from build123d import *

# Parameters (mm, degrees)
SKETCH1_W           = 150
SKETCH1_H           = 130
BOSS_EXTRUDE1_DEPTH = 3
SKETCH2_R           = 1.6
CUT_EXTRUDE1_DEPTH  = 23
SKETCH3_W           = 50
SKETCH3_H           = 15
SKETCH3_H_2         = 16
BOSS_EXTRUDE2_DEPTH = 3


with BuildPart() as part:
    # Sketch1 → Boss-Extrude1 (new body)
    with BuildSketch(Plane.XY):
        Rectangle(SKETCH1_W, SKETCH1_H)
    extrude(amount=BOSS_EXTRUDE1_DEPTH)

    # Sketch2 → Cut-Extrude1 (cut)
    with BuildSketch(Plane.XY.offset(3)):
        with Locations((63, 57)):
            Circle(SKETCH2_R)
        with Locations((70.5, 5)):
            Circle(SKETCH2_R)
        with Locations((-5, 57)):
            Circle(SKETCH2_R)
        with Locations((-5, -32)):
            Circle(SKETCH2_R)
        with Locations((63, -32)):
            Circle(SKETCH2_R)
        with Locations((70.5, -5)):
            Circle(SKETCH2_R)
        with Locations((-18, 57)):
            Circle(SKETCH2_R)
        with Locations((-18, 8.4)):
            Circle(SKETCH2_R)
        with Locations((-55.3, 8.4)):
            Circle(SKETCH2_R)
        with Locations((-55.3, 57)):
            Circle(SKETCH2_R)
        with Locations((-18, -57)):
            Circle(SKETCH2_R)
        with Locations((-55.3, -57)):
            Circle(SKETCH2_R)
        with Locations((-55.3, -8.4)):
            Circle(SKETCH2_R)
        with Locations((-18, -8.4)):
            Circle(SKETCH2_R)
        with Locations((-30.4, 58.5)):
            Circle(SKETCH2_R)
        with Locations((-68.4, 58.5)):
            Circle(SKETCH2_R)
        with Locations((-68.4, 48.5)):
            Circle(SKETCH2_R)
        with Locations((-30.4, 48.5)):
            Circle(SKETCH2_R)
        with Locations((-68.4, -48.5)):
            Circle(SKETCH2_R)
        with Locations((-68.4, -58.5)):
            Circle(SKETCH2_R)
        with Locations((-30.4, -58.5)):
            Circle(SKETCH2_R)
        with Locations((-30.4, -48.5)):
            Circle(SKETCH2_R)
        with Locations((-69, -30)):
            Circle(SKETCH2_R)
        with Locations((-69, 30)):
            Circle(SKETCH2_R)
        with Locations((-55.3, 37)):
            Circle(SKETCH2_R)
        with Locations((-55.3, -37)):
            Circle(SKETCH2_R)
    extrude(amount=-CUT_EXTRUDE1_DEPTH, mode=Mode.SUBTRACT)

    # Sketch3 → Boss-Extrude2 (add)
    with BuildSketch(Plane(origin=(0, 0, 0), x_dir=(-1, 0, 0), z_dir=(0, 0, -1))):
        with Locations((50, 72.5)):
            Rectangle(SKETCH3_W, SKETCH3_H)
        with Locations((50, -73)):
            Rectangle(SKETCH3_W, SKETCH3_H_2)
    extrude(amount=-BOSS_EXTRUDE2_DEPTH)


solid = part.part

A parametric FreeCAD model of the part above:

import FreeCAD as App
import Part
import Sketcher
from FreeCAD import Vector
Q = App.Units.Quantity


def add_polygon(sketch, points):
    """Adds a closed chain of lines whose ends are joined by coincident constraints."""
    first, n = sketch.GeometryCount, len(points)
    for a, b in zip(points, points[1:] + points[:1]):
        sketch.addGeometry(Part.LineSegment(App.Vector(*a, 0), App.Vector(*b, 0)), False)
    for i in range(n):
        sketch.addConstraint(Sketcher.Constraint("Coincident", first + i, 2, first + (i + 1) % n, 1))

doc = App.newDocument("Part")
params = doc.addObject("Spreadsheet::Sheet", "Params")
for row, (alias, value) in enumerate([
    ("sketch1_width", "150 mm"),
    ("sketch1_height", "130 mm"),
    ("pad1_length", "3 mm"),
    ("sketch2_diameter", "3.2 mm"),
    ("pocket1_length", "23 mm"),
    ("sketch3_width", "50 mm"),
    ("sketch3_height", "15 mm"),
    ("sketch3_height2", "16 mm"),
    ("pad2_length", "3 mm"),
], start=1):
    params.set(f"A{row}", alias)
    params.set(f"B{row}", "=" + value)
    params.setAlias(f"B{row}", alias)

body = doc.addObject("PartDesign::Body", "Body")

sketch1 = body.newObject("Sketcher::SketchObject", "Sketch")
sketch1.AttachmentSupport = (doc.getObject("XY_Plane"), [""])
sketch1.MapMode = "FlatFace"
add_polygon(sketch1, [(-75, 65), (-75, -65), (75, -65), (75, 65)])
sketch1.addConstraint(Sketcher.Constraint("Vertical", 0))
sketch1.addConstraint(Sketcher.Constraint("Horizontal", 1))
sketch1.addConstraint(Sketcher.Constraint("Vertical", 2))
sketch1.addConstraint(Sketcher.Constraint("Horizontal", 3))
sketch1.addConstraint(Sketcher.Constraint("Symmetric", 0, 2, 2, 2, -1, 1))
sketch1.addConstraint(Sketcher.Constraint("DistanceX", 1, 1, 1, 2, Q("150 mm")))
sketch1.addConstraint(Sketcher.Constraint("DistanceY", 0, 2, 0, 1, Q("130 mm")))
sketch1.setExpression("Constraints[9]", "Params.sketch1_width")
sketch1.setExpression("Constraints[10]", "Params.sketch1_height")
pad1 = body.newObject("PartDesign::Pad", "Pad")
pad1.Profile = sketch1
pad1.setExpression("Length", "Params.pad1_length")

sketch2 = body.newObject("Sketcher::SketchObject", "Sketch001")
sketch2.AttachmentSupport = (doc.getObject("XY_Plane"), [""])
sketch2.MapMode = "FlatFace"
sketch2.AttachmentOffset = App.Placement(Vector(0, 0, 3), App.Rotation())
sketch2.addGeometry(Part.Circle(Vector(63, 57, 0), Vector(0, 0, 1), 1.6), False)
sketch2.addGeometry(Part.Circle(Vector(70.5, 5, 0), Vector(0, 0, 1), 1.6), False)
sketch2.addGeometry(Part.Circle(Vector(-5, 57, 0), Vector(0, 0, 1), 1.6), False)
sketch2.addGeometry(Part.Circle(Vector(-5, -32, 0), Vector(0, 0, 1), 1.6), False)
sketch2.addGeometry(Part.Circle(Vector(63, -32, 0), Vector(0, 0, 1), 1.6), False)
sketch2.addGeometry(Part.Circle(Vector(70.5, -5, 0), Vector(0, 0, 1), 1.6), False)
sketch2.addGeometry(Part.Circle(Vector(-18, 57, 0), Vector(0, 0, 1), 1.6), False)
sketch2.addGeometry(Part.Circle(Vector(-18, 8.4, 0), Vector(0, 0, 1), 1.6), False)
sketch2.addGeometry(Part.Circle(Vector(-55.3, 8.4, 0), Vector(0, 0, 1), 1.6), False)
sketch2.addGeometry(Part.Circle(Vector(-55.3, 57, 0), Vector(0, 0, 1), 1.6), False)
sketch2.addGeometry(Part.Circle(Vector(-18, -57, 0), Vector(0, 0, 1), 1.6), False)
sketch2.addGeometry(Part.Circle(Vector(-55.3, -57, 0), Vector(0, 0, 1), 1.6), False)
sketch2.addGeometry(Part.Circle(Vector(-55.3, -8.4, 0), Vector(0, 0, 1), 1.6), False)
sketch2.addGeometry(Part.Circle(Vector(-18, -8.4, 0), Vector(0, 0, 1), 1.6), False)
sketch2.addGeometry(Part.Circle(Vector(-30.4, 58.5, 0), Vector(0, 0, 1), 1.6), False)
sketch2.addGeometry(Part.Circle(Vector(-68.4, 58.5, 0), Vector(0, 0, 1), 1.6), False)
sketch2.addGeometry(Part.Circle(Vector(-68.4, 48.5, 0), Vector(0, 0, 1), 1.6), False)
sketch2.addGeometry(Part.Circle(Vector(-30.4, 48.5, 0), Vector(0, 0, 1), 1.6), False)
sketch2.addGeometry(Part.Circle(Vector(-68.4, -48.5, 0), Vector(0, 0, 1), 1.6), False)
sketch2.addGeometry(Part.Circle(Vector(-68.4, -58.5, 0), Vector(0, 0, 1), 1.6), False)
sketch2.addGeometry(Part.Circle(Vector(-30.4, -58.5, 0), Vector(0, 0, 1), 1.6), False)
sketch2.addGeometry(Part.Circle(Vector(-30.4, -48.5, 0), Vector(0, 0, 1), 1.6), False)
sketch2.addGeometry(Part.Circle(Vector(-69, -30, 0), Vector(0, 0, 1), 1.6), False)
sketch2.addGeometry(Part.Circle(Vector(-69, 30, 0), Vector(0, 0, 1), 1.6), False)
sketch2.addGeometry(Part.Circle(Vector(-55.3, 37, 0), Vector(0, 0, 1), 1.6), False)
sketch2.addGeometry(Part.Circle(Vector(-55.3, -37, 0), Vector(0, 0, 1), 1.6), False)
sketch2.addConstraint(Sketcher.Constraint("Equal", 0, 1))
sketch2.addConstraint(Sketcher.Constraint("Equal", 1, 2))
sketch2.addConstraint(Sketcher.Constraint("Equal", 2, 3))
sketch2.addConstraint(Sketcher.Constraint("Equal", 3, 4))
sketch2.addConstraint(Sketcher.Constraint("Equal", 4, 5))
sketch2.addConstraint(Sketcher.Constraint("Equal", 5, 6))
sketch2.addConstraint(Sketcher.Constraint("Equal", 6, 7))
sketch2.addConstraint(Sketcher.Constraint("Equal", 7, 8))
sketch2.addConstraint(Sketcher.Constraint("Equal", 8, 9))
sketch2.addConstraint(Sketcher.Constraint("Equal", 9, 10))
sketch2.addConstraint(Sketcher.Constraint("Equal", 10, 11))
sketch2.addConstraint(Sketcher.Constraint("Equal", 11, 12))
sketch2.addConstraint(Sketcher.Constraint("Equal", 12, 13))
sketch2.addConstraint(Sketcher.Constraint("Equal", 13, 14))
sketch2.addConstraint(Sketcher.Constraint("Equal", 14, 15))
sketch2.addConstraint(Sketcher.Constraint("Equal", 15, 16))
sketch2.addConstraint(Sketcher.Constraint("Equal", 16, 17))
sketch2.addConstraint(Sketcher.Constraint("Equal", 17, 18))
sketch2.addConstraint(Sketcher.Constraint("Equal", 18, 19))
sketch2.addConstraint(Sketcher.Constraint("Equal", 19, 20))
sketch2.addConstraint(Sketcher.Constraint("Equal", 20, 21))
sketch2.addConstraint(Sketcher.Constraint("Equal", 21, 22))
sketch2.addConstraint(Sketcher.Constraint("Equal", 22, 23))
sketch2.addConstraint(Sketcher.Constraint("Equal", 23, 24))
sketch2.addConstraint(Sketcher.Constraint("Equal", 24, 25))
sketch2.addConstraint(Sketcher.Constraint("Symmetric", 1, 3, 5, 3, -1))
sketch2.addConstraint(Sketcher.Constraint("Symmetric", 6, 3, 10, 3, -1))
sketch2.addConstraint(Sketcher.Constraint("Symmetric", 9, 3, 11, 3, -1))
sketch2.addConstraint(Sketcher.Constraint("Symmetric", 8, 3, 12, 3, -1))
sketch2.addConstraint(Sketcher.Constraint("Symmetric", 7, 3, 13, 3, -1))
sketch2.addConstraint(Sketcher.Constraint("Symmetric", 16, 3, 18, 3, -1))
sketch2.addConstraint(Sketcher.Constraint("Symmetric", 15, 3, 19, 3, -1))
sketch2.addConstraint(Sketcher.Constraint("Symmetric", 14, 3, 20, 3, -1))
sketch2.addConstraint(Sketcher.Constraint("Symmetric", 17, 3, 21, 3, -1))
sketch2.addConstraint(Sketcher.Constraint("Symmetric", 22, 3, 23, 3, -1))
sketch2.addConstraint(Sketcher.Constraint("Symmetric", 24, 3, 25, 3, -1))
sketch2.addConstraint(Sketcher.Constraint("Horizontal", 0, 3, 2, 3))
sketch2.addConstraint(Sketcher.Constraint("Horizontal", 3, 3, 4, 3))
sketch2.addConstraint(Sketcher.Constraint("Horizontal", 2, 3, 6, 3))
sketch2.addConstraint(Sketcher.Constraint("Horizontal", 7, 3, 8, 3))
sketch2.addConstraint(Sketcher.Constraint("Horizontal", 6, 3, 9, 3))
sketch2.addConstraint(Sketcher.Constraint("Horizontal", 14, 3, 15, 3))
sketch2.addConstraint(Sketcher.Constraint("Horizontal", 16, 3, 17, 3))
sketch2.addConstraint(Sketcher.Constraint("Vertical", 2, 3, 3, 3))
sketch2.addConstraint(Sketcher.Constraint("Vertical", 0, 3, 4, 3))
sketch2.addConstraint(Sketcher.Constraint("Vertical", 6, 3, 7, 3))
sketch2.addConstraint(Sketcher.Constraint("Vertical", 8, 3, 9, 3))
sketch2.addConstraint(Sketcher.Constraint("Vertical", 15, 3, 16, 3))
sketch2.addConstraint(Sketcher.Constraint("Vertical", 14, 3, 17, 3))
sketch2.addConstraint(Sketcher.Constraint("Vertical", 12, 3, 24, 3))
sketch2.addConstraint(Sketcher.Constraint("Diameter", 0, Q("3.2 mm")))
sketch2.addConstraint(Sketcher.Constraint("DistanceX", -1, 1, 0, 3, Q("63 mm")))
sketch2.addConstraint(Sketcher.Constraint("DistanceY", -1, 1, 0, 3, Q("57 mm")))
sketch2.addConstraint(Sketcher.Constraint("DistanceY", -1, 1, 1, 3, Q("5 mm")))
sketch2.addConstraint(Sketcher.Constraint("DistanceX", 2, 3, -1, 1, Q("5 mm")))
sketch2.addConstraint(Sketcher.Constraint("DistanceY", 3, 3, -1, 1, Q("32 mm")))
sketch2.addConstraint(Sketcher.Constraint("DistanceX", 6, 3, -1, 1, Q("18 mm")))
sketch2.addConstraint(Sketcher.Constraint("DistanceX", 22, 3, -1, 1, Q("69 mm")))
sketch2.addConstraint(Sketcher.Constraint("DistanceY", 22, 3, -1, 1, Q("30 mm")))
sketch2.addConstraint(Sketcher.Constraint("DistanceY", -1, 1, 24, 3, Q("37 mm")))
sketch2.addConstraint(Sketcher.Constraint("DistanceX", 15, 3, 14, 3, Q("38 mm")))
sketch2.addConstraint(Sketcher.Constraint("DistanceY", 16, 3, 15, 3, Q("10 mm")))
sketch2.addConstraint(Sketcher.Constraint("DistanceX", -1, 1, 1, 3, Q("70.5 mm")))
sketch2.addConstraint(Sketcher.Constraint("DistanceY", -1, 1, 7, 3, Q("8.4 mm")))
sketch2.addConstraint(Sketcher.Constraint("DistanceX", 8, 3, -1, 1, Q("55.3 mm")))
sketch2.addConstraint(Sketcher.Constraint("DistanceX", 14, 3, -1, 1, Q("30.4 mm")))
sketch2.addConstraint(Sketcher.Constraint("DistanceY", -1, 1, 14, 3, Q("58.5 mm")))
sketch2.setExpression("Constraints[50]", "Params.sketch2_diameter")
pocket1 = body.newObject("PartDesign::Pocket", "Pocket")
pocket1.Profile = sketch2
pocket1.setExpression("Length", "Params.pocket1_length")

sketch3 = body.newObject("Sketcher::SketchObject", "Sketch002")
sketch3.AttachmentSupport = (doc.getObject("XY_Plane"), [""])
sketch3.MapMode = "FlatFace"
add_polygon(sketch3, [(-25, 80), (-25, 65), (-75, 65), (-75, 80)])
add_polygon(sketch3, [(-25, -65), (-25, -81), (-75, -81), (-75, -65)])
sketch3.addConstraint(Sketcher.Constraint("Vertical", 0))
sketch3.addConstraint(Sketcher.Constraint("Horizontal", 1))
sketch3.addConstraint(Sketcher.Constraint("Vertical", 2))
sketch3.addConstraint(Sketcher.Constraint("Horizontal", 3))
sketch3.addConstraint(Sketcher.Constraint("Vertical", 4))
sketch3.addConstraint(Sketcher.Constraint("Horizontal", 5))
sketch3.addConstraint(Sketcher.Constraint("Vertical", 6))
sketch3.addConstraint(Sketcher.Constraint("Horizontal", 7))
sketch3.addConstraint(Sketcher.Constraint("Symmetric", 1, 2, 6, 2, -1))
sketch3.addConstraint(Sketcher.Constraint("Vertical", 3, 2, 4, 2))
sketch3.addConstraint(Sketcher.Constraint("DistanceX", 1, 2, 1, 1, Q("50 mm")))
sketch3.addConstraint(Sketcher.Constraint("DistanceY", 0, 2, 0, 1, Q("15 mm")))
sketch3.addConstraint(Sketcher.Constraint("DistanceY", 4, 2, 4, 1, Q("16 mm")))
sketch3.addConstraint(Sketcher.Constraint("DistanceX", 0, 2, -1, 1, Q("25 mm")))
sketch3.addConstraint(Sketcher.Constraint("DistanceY", -1, 1, 0, 2, Q("65 mm")))
sketch3.setExpression("Constraints[18]", "Params.sketch3_width")
sketch3.setExpression("Constraints[19]", "Params.sketch3_height")
sketch3.setExpression("Constraints[20]", "Params.sketch3_height2")
pad2 = body.newObject("PartDesign::Pad", "Pad001")
pad2.Profile = sketch3
pad2.setExpression("Length", "Params.pad2_length")

doc.recompute()
